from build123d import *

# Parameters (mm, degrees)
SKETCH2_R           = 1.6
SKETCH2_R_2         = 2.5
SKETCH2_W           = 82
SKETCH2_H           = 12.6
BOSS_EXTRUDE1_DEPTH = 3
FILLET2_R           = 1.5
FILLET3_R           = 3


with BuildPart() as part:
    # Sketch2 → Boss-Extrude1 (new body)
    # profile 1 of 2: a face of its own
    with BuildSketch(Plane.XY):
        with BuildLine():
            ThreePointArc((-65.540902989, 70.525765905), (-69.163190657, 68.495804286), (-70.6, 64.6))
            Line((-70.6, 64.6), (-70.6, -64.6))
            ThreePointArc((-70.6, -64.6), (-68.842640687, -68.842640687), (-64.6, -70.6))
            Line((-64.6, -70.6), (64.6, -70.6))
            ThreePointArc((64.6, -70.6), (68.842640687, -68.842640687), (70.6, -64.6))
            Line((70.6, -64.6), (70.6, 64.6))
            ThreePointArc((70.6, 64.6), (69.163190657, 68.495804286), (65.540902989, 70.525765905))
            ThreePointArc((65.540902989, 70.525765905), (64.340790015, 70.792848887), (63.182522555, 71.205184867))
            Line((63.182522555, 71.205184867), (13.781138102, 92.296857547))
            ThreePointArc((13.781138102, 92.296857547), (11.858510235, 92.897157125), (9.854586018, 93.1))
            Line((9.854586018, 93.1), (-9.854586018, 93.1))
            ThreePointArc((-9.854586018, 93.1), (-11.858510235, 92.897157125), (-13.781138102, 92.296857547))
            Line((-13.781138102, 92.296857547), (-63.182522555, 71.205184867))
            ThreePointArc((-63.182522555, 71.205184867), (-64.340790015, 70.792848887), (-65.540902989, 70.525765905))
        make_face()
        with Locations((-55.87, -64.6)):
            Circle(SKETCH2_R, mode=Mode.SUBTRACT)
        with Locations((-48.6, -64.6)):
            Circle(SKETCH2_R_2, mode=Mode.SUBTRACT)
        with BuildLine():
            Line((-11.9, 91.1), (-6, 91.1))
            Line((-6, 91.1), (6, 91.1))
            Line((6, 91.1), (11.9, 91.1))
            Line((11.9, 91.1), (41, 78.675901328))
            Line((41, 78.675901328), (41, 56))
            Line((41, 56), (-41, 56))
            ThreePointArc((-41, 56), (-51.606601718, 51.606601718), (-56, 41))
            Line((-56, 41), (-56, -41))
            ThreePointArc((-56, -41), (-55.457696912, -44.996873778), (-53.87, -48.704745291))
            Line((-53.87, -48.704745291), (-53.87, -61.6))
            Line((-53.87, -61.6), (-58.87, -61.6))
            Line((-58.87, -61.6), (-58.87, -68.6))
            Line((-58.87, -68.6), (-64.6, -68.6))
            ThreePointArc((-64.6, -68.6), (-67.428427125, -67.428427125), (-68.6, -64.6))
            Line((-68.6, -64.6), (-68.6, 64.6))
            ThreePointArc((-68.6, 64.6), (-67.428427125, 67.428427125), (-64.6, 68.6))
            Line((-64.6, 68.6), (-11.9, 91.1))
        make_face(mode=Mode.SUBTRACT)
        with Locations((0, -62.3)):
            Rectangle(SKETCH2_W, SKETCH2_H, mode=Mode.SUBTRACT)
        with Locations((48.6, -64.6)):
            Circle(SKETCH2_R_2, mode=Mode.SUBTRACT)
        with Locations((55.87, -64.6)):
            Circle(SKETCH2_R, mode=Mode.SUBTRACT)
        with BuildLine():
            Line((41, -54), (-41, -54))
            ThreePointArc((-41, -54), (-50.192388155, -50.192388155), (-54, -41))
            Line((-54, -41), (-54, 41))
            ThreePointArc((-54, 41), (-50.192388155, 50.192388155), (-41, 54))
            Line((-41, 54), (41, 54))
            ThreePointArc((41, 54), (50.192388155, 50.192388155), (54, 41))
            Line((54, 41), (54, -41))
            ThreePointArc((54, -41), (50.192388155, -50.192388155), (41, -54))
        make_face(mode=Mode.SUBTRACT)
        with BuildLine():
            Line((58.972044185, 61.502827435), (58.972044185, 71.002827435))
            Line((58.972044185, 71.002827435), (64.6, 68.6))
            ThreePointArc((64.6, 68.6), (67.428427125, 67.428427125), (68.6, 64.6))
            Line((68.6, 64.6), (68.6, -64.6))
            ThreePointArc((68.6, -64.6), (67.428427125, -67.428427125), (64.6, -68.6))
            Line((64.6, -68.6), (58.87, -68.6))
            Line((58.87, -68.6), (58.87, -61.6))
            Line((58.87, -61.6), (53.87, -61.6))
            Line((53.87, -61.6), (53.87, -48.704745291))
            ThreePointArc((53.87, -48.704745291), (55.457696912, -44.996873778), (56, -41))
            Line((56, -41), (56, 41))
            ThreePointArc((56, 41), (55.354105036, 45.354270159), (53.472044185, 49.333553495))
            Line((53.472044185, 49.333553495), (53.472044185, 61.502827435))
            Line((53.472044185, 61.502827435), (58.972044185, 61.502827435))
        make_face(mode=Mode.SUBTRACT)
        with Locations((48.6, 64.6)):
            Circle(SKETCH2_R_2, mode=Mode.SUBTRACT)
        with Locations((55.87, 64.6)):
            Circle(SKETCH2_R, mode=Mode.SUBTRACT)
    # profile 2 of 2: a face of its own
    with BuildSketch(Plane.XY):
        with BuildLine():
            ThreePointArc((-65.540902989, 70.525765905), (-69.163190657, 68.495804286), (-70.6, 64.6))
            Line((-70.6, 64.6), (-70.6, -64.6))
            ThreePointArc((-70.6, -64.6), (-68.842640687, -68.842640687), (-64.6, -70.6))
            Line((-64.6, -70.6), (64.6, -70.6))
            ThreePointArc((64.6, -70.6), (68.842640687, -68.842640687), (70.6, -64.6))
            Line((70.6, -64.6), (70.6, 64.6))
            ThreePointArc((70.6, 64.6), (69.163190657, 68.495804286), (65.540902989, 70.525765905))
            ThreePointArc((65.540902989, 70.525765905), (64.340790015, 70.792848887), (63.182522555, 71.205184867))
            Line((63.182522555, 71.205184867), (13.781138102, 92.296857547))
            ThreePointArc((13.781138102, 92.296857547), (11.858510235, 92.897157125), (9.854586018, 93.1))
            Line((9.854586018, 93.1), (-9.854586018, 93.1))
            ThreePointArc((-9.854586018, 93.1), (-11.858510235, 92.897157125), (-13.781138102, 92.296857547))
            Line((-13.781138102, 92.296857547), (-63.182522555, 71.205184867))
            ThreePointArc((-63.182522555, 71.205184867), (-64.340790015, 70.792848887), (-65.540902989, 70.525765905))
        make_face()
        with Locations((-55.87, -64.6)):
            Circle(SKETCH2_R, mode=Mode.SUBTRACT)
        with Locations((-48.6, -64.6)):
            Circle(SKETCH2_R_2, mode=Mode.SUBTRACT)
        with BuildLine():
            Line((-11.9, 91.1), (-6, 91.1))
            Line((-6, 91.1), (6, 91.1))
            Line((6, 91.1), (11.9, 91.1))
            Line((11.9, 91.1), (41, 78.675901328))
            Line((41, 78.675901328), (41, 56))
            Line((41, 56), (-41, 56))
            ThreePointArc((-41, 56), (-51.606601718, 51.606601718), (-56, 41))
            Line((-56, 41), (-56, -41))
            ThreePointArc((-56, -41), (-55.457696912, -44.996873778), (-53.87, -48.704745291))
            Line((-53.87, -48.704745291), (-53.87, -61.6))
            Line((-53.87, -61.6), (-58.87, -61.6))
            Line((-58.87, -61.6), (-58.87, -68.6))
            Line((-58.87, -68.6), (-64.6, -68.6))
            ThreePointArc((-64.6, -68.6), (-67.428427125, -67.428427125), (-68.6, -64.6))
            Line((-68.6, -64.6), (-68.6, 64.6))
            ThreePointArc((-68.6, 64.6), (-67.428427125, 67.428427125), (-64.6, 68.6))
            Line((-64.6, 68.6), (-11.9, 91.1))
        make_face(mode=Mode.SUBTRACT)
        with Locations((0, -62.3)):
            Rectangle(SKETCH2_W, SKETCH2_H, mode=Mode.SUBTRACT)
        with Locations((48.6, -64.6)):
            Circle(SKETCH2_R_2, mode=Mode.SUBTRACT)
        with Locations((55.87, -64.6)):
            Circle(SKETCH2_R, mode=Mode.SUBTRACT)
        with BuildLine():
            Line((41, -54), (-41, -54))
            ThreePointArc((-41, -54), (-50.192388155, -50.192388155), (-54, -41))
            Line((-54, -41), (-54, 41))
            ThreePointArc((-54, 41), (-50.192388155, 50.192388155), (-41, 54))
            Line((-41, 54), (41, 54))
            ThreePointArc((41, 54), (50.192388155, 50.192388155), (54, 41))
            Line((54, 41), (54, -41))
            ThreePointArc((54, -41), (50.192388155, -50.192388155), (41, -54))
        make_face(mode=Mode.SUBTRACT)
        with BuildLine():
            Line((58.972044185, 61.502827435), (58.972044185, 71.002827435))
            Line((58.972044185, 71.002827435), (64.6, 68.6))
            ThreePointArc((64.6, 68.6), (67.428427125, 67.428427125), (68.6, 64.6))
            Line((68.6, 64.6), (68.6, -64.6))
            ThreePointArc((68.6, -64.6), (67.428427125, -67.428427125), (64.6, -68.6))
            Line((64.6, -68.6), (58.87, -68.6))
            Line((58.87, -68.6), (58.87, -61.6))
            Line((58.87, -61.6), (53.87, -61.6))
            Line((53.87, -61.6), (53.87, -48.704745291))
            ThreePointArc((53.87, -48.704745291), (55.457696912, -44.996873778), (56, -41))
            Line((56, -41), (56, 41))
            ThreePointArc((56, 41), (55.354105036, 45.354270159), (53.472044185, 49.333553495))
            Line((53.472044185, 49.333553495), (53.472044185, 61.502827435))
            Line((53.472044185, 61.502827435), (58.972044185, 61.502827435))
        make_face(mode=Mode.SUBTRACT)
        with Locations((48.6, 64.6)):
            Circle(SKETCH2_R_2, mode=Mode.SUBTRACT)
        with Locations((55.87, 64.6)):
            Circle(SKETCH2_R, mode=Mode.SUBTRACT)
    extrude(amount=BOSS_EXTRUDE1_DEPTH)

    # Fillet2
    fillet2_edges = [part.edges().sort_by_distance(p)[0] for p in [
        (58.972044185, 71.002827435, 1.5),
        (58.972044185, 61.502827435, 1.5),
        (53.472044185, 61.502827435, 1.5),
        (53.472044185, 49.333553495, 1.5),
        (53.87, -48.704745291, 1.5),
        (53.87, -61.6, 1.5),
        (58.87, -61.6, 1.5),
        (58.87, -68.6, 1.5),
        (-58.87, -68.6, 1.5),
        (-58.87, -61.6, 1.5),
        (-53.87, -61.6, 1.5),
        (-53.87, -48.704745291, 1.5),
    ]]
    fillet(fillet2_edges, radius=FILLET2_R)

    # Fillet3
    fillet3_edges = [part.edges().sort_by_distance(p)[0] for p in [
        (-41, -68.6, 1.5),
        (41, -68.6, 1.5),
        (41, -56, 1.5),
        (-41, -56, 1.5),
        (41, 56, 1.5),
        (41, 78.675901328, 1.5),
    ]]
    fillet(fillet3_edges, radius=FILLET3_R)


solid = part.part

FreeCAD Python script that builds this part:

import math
import FreeCAD as App
import Part
import Sketcher

V = App.Vector


def edges_at(feature, points):
    """Names of the edges that pass closest to the given points."""
    edges = feature.Shape.Edges
    near = lambda p: min(range(len(edges)), key=lambda i: edges[i].distToShape(Part.Vertex(*p))[0])
    return sorted({f"Edge{near(p) + 1}" for p in points})

doc = App.newDocument("Part")
body = doc.addObject("PartDesign::Body", "Body")

# Sketch on XY plane
sketch1 = doc.addObject("Sketcher::SketchObject", "Sketch")
body.addObject(sketch1)
sketch1.AttachmentSupport = (doc.XY_Plane, [""])
sketch1.MapMode = "FlatFace"
sketch1.addGeometry(Part.ArcOfCircle(Part.Circle(V(-64.6, 64.6, 0), V(0, 0, 1), 6), math.radians(99), math.radians(180)), False)
sketch1.addGeometry(Part.LineSegment(V(-70.6, 64.6, 0), V(-70.6, -64.6, 0)), False)
sketch1.addGeometry(Part.ArcOfCircle(Part.Circle(V(-64.6, -64.6, 0), V(0, 0, 1), 6), math.radians(180), math.radians(270)), False)
sketch1.addGeometry(Part.LineSegment(V(-64.6, -70.6, 0), V(64.6, -70.6, 0)), False)
sketch1.addGeometry(Part.ArcOfCircle(Part.Circle(V(64.6, -64.6, 0), V(0, 0, 1), 6), math.radians(-90), math.radians(0)), False)
sketch1.addGeometry(Part.LineSegment(V(70.6, -64.6, 0), V(70.6, 64.6, 0)), False)
sketch1.addGeometry(Part.ArcOfCircle(Part.Circle(V(64.6, 64.6, 0), V(0, 0, 1), 6), math.radians(0), math.radians(81)), False)
sketch1.addGeometry(Part.ArcOfCircle(Part.Circle(V(67.1, 80.4, 0), V(0, 0, 1), 10), math.radians(-113.12), math.radians(-99.02)), False)
sketch1.addGeometry(Part.LineSegment(V(63.2, 71.2, 0), V(13.8, 92.3, 0)), False)
sketch1.addGeometry(Part.ArcOfCircle(Part.Circle(V(9.9, 83.1, 0), V(0, 0, 1), 10), math.radians(67), math.radians(90)), False)
sketch1.addGeometry(Part.LineSegment(V(9.9, 93.1, 0), V(-9.9, 93.1, 0)), False)
sketch1.addGeometry(Part.ArcOfCircle(Part.Circle(V(-9.9, 83.1, 0), V(0, 0, 1), 10), math.radians(90), math.radians(113)), False)
sketch1.addGeometry(Part.LineSegment(V(-13.8, 92.3, 0), V(-63.2, 71.2, 0)), False)
sketch1.addGeometry(Part.ArcOfCircle(Part.Circle(V(-67.1, 80.4, 0), V(0, 0, 1), 10), math.radians(-80.98), math.radians(-66.88)), False)
sketch1.addGeometry(Part.Circle(V(-55.9, -64.6, 0), V(0, 0, 1), 1.6), False)
sketch1.addGeometry(Part.Circle(V(-48.6, -64.6, 0), V(0, 0, 1), 2.5), False)
sketch1.addGeometry(Part.LineSegment(V(41, -68.6, 0), V(-41, -68.6, 0)), False)
sketch1.addGeometry(Part.LineSegment(V(-41, -68.6, 0), V(-41, -56, 0)), False)
sketch1.addGeometry(Part.LineSegment(V(-41, -56, 0), V(41, -56, 0)), False)
sketch1.addGeometry(Part.LineSegment(V(41, -56, 0), V(41, -68.6, 0)), False)
sketch1.addGeometry(Part.Circle(V(48.6, -64.6, 0), V(0, 0, 1), 2.5), False)
sketch1.addGeometry(Part.Circle(V(55.9, -64.6, 0), V(0, 0, 1), 1.6), False)
sketch1.addGeometry(Part.ArcOfCircle(Part.Circle(V(41, -41, 0), V(0, 0, 1), 13), math.radians(-90), math.radians(0)), False)
sketch1.addGeometry(Part.LineSegment(V(41, -54, 0), V(-41, -54, 0)), False)
sketch1.addGeometry(Part.ArcOfCircle(Part.Circle(V(-41, -41, 0), V(0, 0, 1), 13), math.radians(-180), math.radians(-90)), False)
sketch1.addGeometry(Part.LineSegment(V(-54, -41, 0), V(-54, 41, 0)), False)
sketch1.addGeometry(Part.ArcOfCircle(Part.Circle(V(-41, 41, 0), V(0, 0, 1), 13), math.radians(90), math.radians(180)), False)
sketch1.addGeometry(Part.LineSegment(V(-41, 54, 0), V(41, 54, 0)), False)
sketch1.addGeometry(Part.ArcOfCircle(Part.Circle(V(41, 41, 0), V(0, 0, 1), 13), math.radians(0), math.radians(90)), False)
sketch1.addGeometry(Part.LineSegment(V(54, 41, 0), V(54, -41, 0)), False)
sketch1.addGeometry(Part.LineSegment(V(53.5, 61.5, 0), V(59, 61.5, 0)), False)
sketch1.addGeometry(Part.LineSegment(V(59, 61.5, 0), V(59, 71, 0)), False)
sketch1.addGeometry(Part.LineSegment(V(59, 71, 0), V(64.6, 68.6, 0)), False)
sketch1.addGeometry(Part.ArcOfCircle(Part.Circle(V(64.6, 64.6, 0), V(0, 0, 1), 4), math.radians(0), math.radians(90)), False)
sketch1.addGeometry(Part.LineSegment(V(68.6, 64.6, 0), V(68.6, -64.6, 0)), False)
sketch1.addGeometry(Part.ArcOfCircle(Part.Circle(V(64.6, -64.6, 0), V(0, 0, 1), 4), math.radians(-90), math.radians(0)), False)
sketch1.addGeometry(Part.LineSegment(V(64.6, -68.6, 0), V(58.9, -68.6, 0)), False)
sketch1.addGeometry(Part.LineSegment(V(58.9, -68.6, 0), V(58.9, -61.6, 0)), False)
sketch1.addGeometry(Part.LineSegment(V(58.9, -61.6, 0), V(53.9, -61.6, 0)), False)
sketch1.addGeometry(Part.LineSegment(V(53.9, -61.6, 0), V(53.9, -48.7, 0)), False)
sketch1.addGeometry(Part.ArcOfCircle(Part.Circle(V(41, -41, 0), V(0, 0, 1), 15), math.radians(-31), math.radians(0)), False)
sketch1.addGeometry(Part.LineSegment(V(56, -41, 0), V(56, 41, 0)), False)
sketch1.addGeometry(Part.ArcOfCircle(Part.Circle(V(41, 41, 0), V(0, 0, 1), 15), math.radians(0), math.radians(34)), False)
sketch1.addGeometry(Part.LineSegment(V(53.5, 49.3, 0), V(53.5, 61.5, 0)), False)
sketch1.addGeometry(Part.LineSegment(V(-64.6, 68.6, 0), V(-11.9, 91.1, 0)), False)
sketch1.addGeometry(Part.LineSegment(V(-11.9, 91.1, 0), V(11.9, 91.1, 0)), False)
sketch1.addGeometry(Part.LineSegment(V(11.9, 91.1, 0), V(41, 78.7, 0)), False)
sketch1.addGeometry(Part.LineSegment(V(41, 78.7, 0), V(41, 56, 0)), False)
sketch1.addGeometry(Part.LineSegment(V(41, 56, 0), V(-41, 56, 0)), False)
sketch1.addGeometry(Part.ArcOfCircle(Part.Circle(V(-41, 41, 0), V(0, 0, 1), 15), math.radians(90), math.radians(180)), False)
sketch1.addGeometry(Part.LineSegment(V(-56, 41, 0), V(-56, -41, 0)), False)
sketch1.addGeometry(Part.ArcOfCircle(Part.Circle(V(-41, -41, 0), V(0, 0, 1), 15), math.radians(-180), math.radians(-149)), False)
sketch1.addGeometry(Part.LineSegment(V(-53.9, -48.7, 0), V(-53.9, -61.6, 0)), False)
sketch1.addGeometry(Part.LineSegment(V(-53.9, -61.6, 0), V(-58.9, -61.6, 0)), False)
sketch1.addGeometry(Part.LineSegment(V(-58.9, -61.6, 0), V(-58.9, -68.6, 0)), False)
sketch1.addGeometry(Part.LineSegment(V(-58.9, -68.6, 0), V(-64.6, -68.6, 0)), False)
sketch1.addGeometry(Part.ArcOfCircle(Part.Circle(V(-64.6, -64.6, 0), V(0, 0, 1), 4), math.radians(180), math.radians(270)), False)
sketch1.addGeometry(Part.LineSegment(V(-68.6, -64.6, 0), V(-68.6, 64.6, 0)), False)
sketch1.addGeometry(Part.ArcOfCircle(Part.Circle(V(-64.6, 64.6, 0), V(0, 0, 1), 4), math.radians(90), math.radians(180)), False)
sketch1.addGeometry(Part.Circle(V(48.6, 64.6, 0), V(0, 0, 1), 2.5), False)
sketch1.addGeometry(Part.Circle(V(55.9, 64.6, 0), V(0, 0, 1), 1.6), False)
sketch1.addConstraint(Sketcher.Constraint("Tangent", 0, 2, 1, 1))
sketch1.addConstraint(Sketcher.Constraint("Tangent", 1, 2, 2, 1))
sketch1.addConstraint(Sketcher.Constraint("Tangent", 2, 2, 3, 1))
sketch1.addConstraint(Sketcher.Constraint("Tangent", 3, 2, 4, 1))
sketch1.addConstraint(Sketcher.Constraint("Tangent", 4, 2, 5, 1))
sketch1.addConstraint(Sketcher.Constraint("Tangent", 5, 2, 6, 1))
sketch1.addConstraint(Sketcher.Constraint("Tangent", 6, 2, 7, 2))
sketch1.addConstraint(Sketcher.Constraint("Tangent", 7, 1, 8, 1))
sketch1.addConstraint(Sketcher.Constraint("Tangent", 8, 2, 9, 1))
sketch1.addConstraint(Sketcher.Constraint("Tangent", 9, 2, 10, 1))
sketch1.addConstraint(Sketcher.Constraint("Tangent", 10, 2, 11, 1))
sketch1.addConstraint(Sketcher.Constraint("Tangent", 11, 2, 12, 1))
sketch1.addConstraint(Sketcher.Constraint("Tangent", 12, 2, 13, 2))
sketch1.addConstraint(Sketcher.Constraint("Tangent", 13, 1, 0, 1))
sketch1.addConstraint(Sketcher.Constraint("Coincident", 16, 2, 17, 1))
sketch1.addConstraint(Sketcher.Constraint("Coincident", 17, 2, 18, 1))
sketch1.addConstraint(Sketcher.Constraint("Coincident", 18, 2, 19, 1))
sketch1.addConstraint(Sketcher.Constraint("Coincident", 19, 2, 16, 1))
sketch1.addConstraint(Sketcher.Constraint("Tangent", 22, 1, 23, 1))
sketch1.addConstraint(Sketcher.Constraint("Tangent", 23, 2, 24, 2))
sketch1.addConstraint(Sketcher.Constraint("Tangent", 24, 1, 25, 1))
sketch1.addConstraint(Sketcher.Constraint("Tangent", 25, 2, 26, 2))
sketch1.addConstraint(Sketcher.Constraint("Tangent", 26, 1, 27, 1))
sketch1.addConstraint(Sketcher.Constraint("Tangent", 27, 2, 28, 2))
sketch1.addConstraint(Sketcher.Constraint("Tangent", 28, 1, 29, 1))
sketch1.addConstraint(Sketcher.Constraint("Tangent", 29, 2, 22, 2))
sketch1.addConstraint(Sketcher.Constraint("Coincident", 30, 2, 31, 1))
sketch1.addConstraint(Sketcher.Constraint("Coincident", 31, 2, 32, 1))
sketch1.addConstraint(Sketcher.Constraint("Coincident", 32, 2, 33, 2))
sketch1.addConstraint(Sketcher.Constraint("Tangent", 33, 1, 34, 1))
sketch1.addConstraint(Sketcher.Constraint("Tangent", 34, 2, 35, 2))
sketch1.addConstraint(Sketcher.Constraint("Tangent", 35, 1, 36, 1))
sketch1.addConstraint(Sketcher.Constraint("Coincident", 36, 2, 37, 1))
sketch1.addConstraint(Sketcher.Constraint("Coincident", 37, 2, 38, 1))
sketch1.addConstraint(Sketcher.Constraint("Coincident", 38, 2, 39, 1))
sketch1.addConstraint(Sketcher.Constraint("Coincident", 39, 2, 40, 1))
sketch1.addConstraint(Sketcher.Constraint("Tangent", 40, 2, 41, 1))
sketch1.addConstraint(Sketcher.Constraint("Tangent", 41, 2, 42, 1))
sketch1.addConstraint(Sketcher.Constraint("Coincident", 42, 2, 43, 1))
sketch1.addConstraint(Sketcher.Constraint("Coincident", 43, 2, 30, 1))
sketch1.addConstraint(Sketcher.Constraint("Coincident", 44, 2, 45, 1))
sketch1.addConstraint(Sketcher.Constraint("Coincident", 45, 2, 46, 1))
sketch1.addConstraint(Sketcher.Constraint("Coincident", 46, 2, 47, 1))
sketch1.addConstraint(Sketcher.Constraint("Coincident", 47, 2, 48, 1))
sketch1.addConstraint(Sketcher.Constraint("Tangent", 48, 2, 49, 1))
sketch1.addConstraint(Sketcher.Constraint("Tangent", 49, 2, 50, 1))
sketch1.addConstraint(Sketcher.Constraint("Tangent", 50, 2, 51, 1))
sketch1.addConstraint(Sketcher.Constraint("Coincident", 51, 2, 52, 1))
sketch1.addConstraint(Sketcher.Constraint("Coincident", 52, 2, 53, 1))
sketch1.addConstraint(Sketcher.Constraint("Coincident", 53, 2, 54, 1))
sketch1.addConstraint(Sketcher.Constraint("Coincident", 54, 2, 55, 1))
sketch1.addConstraint(Sketcher.Constraint("Tangent", 55, 2, 56, 2))
sketch1.addConstraint(Sketcher.Constraint("Tangent", 56, 1, 57, 1))
sketch1.addConstraint(Sketcher.Constraint("Tangent", 57, 2, 58, 2))
sketch1.addConstraint(Sketcher.Constraint("Coincident", 58, 1, 44, 1))
sketch1.addConstraint(Sketcher.Constraint("Vertical", 1))
sketch1.addConstraint(Sketcher.Constraint("Horizontal", 3))
sketch1.addConstraint(Sketcher.Constraint("Vertical", 5))
sketch1.addConstraint(Sketcher.Constraint("Horizontal", 10))
sketch1.addConstraint(Sketcher.Constraint("Horizontal", 16))
sketch1.addConstraint(Sketcher.Constraint("Vertical", 17))
sketch1.addConstraint(Sketcher.Constraint("Horizontal", 18))
sketch1.addConstraint(Sketcher.Constraint("Vertical", 19))
sketch1.addConstraint(Sketcher.Constraint("Horizontal", 23))
sketch1.addConstraint(Sketcher.Constraint("Vertical", 25))
sketch1.addConstraint(Sketcher.Constraint("Horizontal", 27))
sketch1.addConstraint(Sketcher.Constraint("Vertical", 29))
sketch1.addConstraint(Sketcher.Constraint("Horizontal", 30))
sketch1.addConstraint(Sketcher.Constraint("Vertical", 31))
sketch1.addConstraint(Sketcher.Constraint("Vertical", 34))
sketch1.addConstraint(Sketcher.Constraint("Horizontal", 36))
sketch1.addConstraint(Sketcher.Constraint("Vertical", 37))
sketch1.addConstraint(Sketcher.Constraint("Horizontal", 38))
sketch1.addConstraint(Sketcher.Constraint("Vertical", 39))
sketch1.addConstraint(Sketcher.Constraint("Vertical", 41))
sketch1.addConstraint(Sketcher.Constraint("Vertical", 43))
sketch1.addConstraint(Sketcher.Constraint("Horizontal", 45))
sketch1.addConstraint(Sketcher.Constraint("Vertical", 47))
sketch1.addConstraint(Sketcher.Constraint("Horizontal", 48))
sketch1.addConstraint(Sketcher.Constraint("Vertical", 50))
sketch1.addConstraint(Sketcher.Constraint("Vertical", 52))
sketch1.addConstraint(Sketcher.Constraint("Horizontal", 53))
sketch1.addConstraint(Sketcher.Constraint("Vertical", 54))
sketch1.addConstraint(Sketcher.Constraint("Horizontal", 55))
sketch1.addConstraint(Sketcher.Constraint("Vertical", 57))
sketch1.addConstraint(Sketcher.Constraint("Coincident", 33, 3, 6, 3))
sketch1.addConstraint(Sketcher.Constraint("Coincident", 35, 3, 4, 3))
sketch1.addConstraint(Sketcher.Constraint("Coincident", 40, 3, 22, 3))
sketch1.addConstraint(Sketcher.Constraint("Coincident", 42, 3, 28, 3))
sketch1.addConstraint(Sketcher.Constraint("Coincident", 49, 3, 26, 3))
sketch1.addConstraint(Sketcher.Constraint("Coincident", 51, 3, 24, 3))
sketch1.addConstraint(Sketcher.Constraint("Coincident", 56, 3, 2, 3))
sketch1.addConstraint(Sketcher.Constraint("Coincident", 58, 3, 0, 3))
sketch1.addConstraint(Sketcher.Constraint("Equal", 0, 2))
sketch1.addConstraint(Sketcher.Constraint("Equal", 2, 4))
sketch1.addConstraint(Sketcher.Constraint("Equal", 4, 6))
sketch1.addConstraint(Sketcher.Constraint("Equal", 7, 9))
sketch1.addConstraint(Sketcher.Constraint("Equal", 9, 11))
sketch1.addConstraint(Sketcher.Constraint("Equal", 11, 13))
sketch1.addConstraint(Sketcher.Constraint("Equal", 15, 20))
sketch1.addConstraint(Sketcher.Constraint("Equal", 14, 21))
sketch1.addConstraint(Sketcher.Constraint("Equal", 22, 24))
sketch1.addConstraint(Sketcher.Constraint("Equal", 24, 26))
sketch1.addConstraint(Sketcher.Constraint("Equal", 26, 28))
sketch1.addConstraint(Sketcher.Constraint("Equal", 42, 49))
sketch1.addConstraint(Sketcher.Constraint("Equal", 35, 56))
sketch1.addConstraint(Sketcher.Constraint("Equal", 20, 59))
sketch1.addConstraint(Sketcher.Constraint("Equal", 21, 60))
sketch1.addConstraint(Sketcher.Constraint("Symmetric", 0, 3, 4, 3, -1, 1))
sketch1.addConstraint(Sketcher.Constraint("Symmetric", 22, 3, 26, 3, -1, 1))
sketch1.addConstraint(Sketcher.Constraint("Symmetric", 15, 3, 59, 3, -1, 1))
sketch1.addConstraint(Sketcher.Constraint("Symmetric", 14, 3, 60, 3, -1, 1))
sketch1.addConstraint(Sketcher.Constraint("Symmetric", 17, 2, 47, 2, -1, 1))
sketch1.addConstraint(Sketcher.Constraint("Symmetric", 32, 2, 55, 2, -1, 1))
sketch1.addConstraint(Sketcher.Constraint("Symmetric", 15, 3, 20, 3, -2))
sketch1.addConstraint(Sketcher.Constraint("Symmetric", 14, 3, 21, 3, -2))
sketch1.addConstraint(Sketcher.Constraint("Symmetric", 8, 2, 11, 2, -2))
sketch1.addConstraint(Sketcher.Constraint("Symmetric", 38, 2, 52, 2, -2))
sketch1.addConstraint(Sketcher.Constraint("Parallel", 8, 32))
sketch1.addConstraint(Sketcher.Constraint("Parallel", 12, 44))
sketch1.addConstraint(Sketcher.Constraint("Parallel", 32, 46))
sketch1.addConstraint(Sketcher.Constraint("Horizontal", 4, 3, 14, 3))
sketch1.addConstraint(Sketcher.Constraint("Horizontal", 14, 3, 15, 3))
sketch1.addConstraint(Sketcher.Constraint("Horizontal", 19, 2, 35, 1))
sketch1.addConstraint(Sketcher.Constraint("Vertical", 51, 3, 16, 2))
sketch1.addConstraint(Sketcher.Constraint("Vertical", 42, 3, 18, 2))
sketch1.addConstraint(Sketcher.Constraint("Vertical", 55, 2, 58, 1))
sketch1.addConstraint(Sketcher.Constraint("Equal", 38, 53))
sketch1.addConstraint(Sketcher.Constraint("Equal", 3, 1))
sketch1.addConstraint(Sketcher.Constraint("Equal", 48, 25))
sketch1.addConstraint(Sketcher.Constraint("Diameter", 15, 5.0))
sketch1.addConstraint(Sketcher.Constraint("Radius", 0, 6.0))
sketch1.addConstraint(Sketcher.Constraint("Radius", 7, 10.0))
sketch1.addConstraint(Sketcher.Constraint("Radius", 22, 13.0))
sketch1.addConstraint(Sketcher.Constraint("Radius", 33, 4.0))
sketch1.addConstraint(Sketcher.Constraint("Radius", 40, 15.0))
sketch1.addConstraint(Sketcher.Constraint("Diameter", 14, 3.2))
sketch1.addConstraint(Sketcher.Constraint("DistanceX", 16, 2, 16, 1, 82.0))
sketch1.addConstraint(Sketcher.Constraint("DistanceX", 38, 2, 38, 1, 5.0))
sketch1.addConstraint(Sketcher.Constraint("DistanceY", 37, 1, 37, 2, 7.0))
sketch1.addConstraint(Sketcher.Constraint("DistanceX", 3, 1, 3, 2, 129.2))
sketch1.addConstraint(Sketcher.Constraint("DistanceX", 30, 1, 30, 2, 5.5))
sketch1.addConstraint(Sketcher.Constraint("DistanceX", 45, 1, 45, 2, 23.8))
sketch1.addConstraint(Sketcher.Constraint("DistanceY", 31, 1, 31, 2, 9.5))
sketch1.addConstraint(Sketcher.Constraint("DistanceX", 36, 2, 36, 1, 5.73))
sketch1.addConstraint(Sketcher.Constraint("DistanceY", -1, 1, 9, 3, 83.1))
sketch1.addConstraint(Sketcher.Constraint("DistanceX", 15, 3, -1, 1, 48.6))
sketch1.addConstraint(Sketcher.Constraint("DistanceX", 44, 2, -1, 1, 11.9))
sketch1.addConstraint(Sketcher.Constraint("DistanceY", -1, 1, 44, 2, 91.1))
sketch1.addConstraint(Sketcher.Constraint("DistanceX", 14, 3, -1, 1, 55.87))
sketch1.addConstraint(Sketcher.Constraint("DistanceX", 10, 2, 10, 1, 19.709172))
sketch1.addConstraint(Sketcher.Constraint("DistanceY", 43, 1, 43, 2, 12.169274))
pad1 = doc.addObject("PartDesign::Pad", "Pad")
body.addObject(pad1)
pad1.Profile = sketch1
pad1.Length = 3
doc.recompute()

fillet = doc.addObject("PartDesign::Fillet", "Fillet")
body.addObject(fillet)
fillet.Base = (pad1, edges_at(pad1, [
    (58.972, 71.003, 1.5),
    (58.972, 61.503, 1.5),
    (53.472, 61.503, 1.5),
    (53.472, 49.334, 1.5),
    (53.87, -48.705, 1.5),
    (53.87, -61.6, 1.5),
    (58.87, -61.6, 1.5),
    (58.87, -68.6, 1.5),
    (-58.87, -68.6, 1.5),
    (-58.87, -61.6, 1.5),
    (-53.87, -61.6, 1.5),
    (-53.87, -48.705, 1.5),
]))
fillet.Radius = 1.5
doc.recompute()

fillet2 = doc.addObject("PartDesign::Fillet", "Fillet001")
body.addObject(fillet2)
fillet2.Base = (fillet, edges_at(fillet, [
    (-41, -68.6, 1.5),
    (41, -68.6, 1.5),
    (41, -56, 1.5),
    (-41, -56, 1.5),
    (41, 56, 1.5),
    (41, 78.676, 1.5),
]))
fillet2.Radius = 3

doc.recompute()
